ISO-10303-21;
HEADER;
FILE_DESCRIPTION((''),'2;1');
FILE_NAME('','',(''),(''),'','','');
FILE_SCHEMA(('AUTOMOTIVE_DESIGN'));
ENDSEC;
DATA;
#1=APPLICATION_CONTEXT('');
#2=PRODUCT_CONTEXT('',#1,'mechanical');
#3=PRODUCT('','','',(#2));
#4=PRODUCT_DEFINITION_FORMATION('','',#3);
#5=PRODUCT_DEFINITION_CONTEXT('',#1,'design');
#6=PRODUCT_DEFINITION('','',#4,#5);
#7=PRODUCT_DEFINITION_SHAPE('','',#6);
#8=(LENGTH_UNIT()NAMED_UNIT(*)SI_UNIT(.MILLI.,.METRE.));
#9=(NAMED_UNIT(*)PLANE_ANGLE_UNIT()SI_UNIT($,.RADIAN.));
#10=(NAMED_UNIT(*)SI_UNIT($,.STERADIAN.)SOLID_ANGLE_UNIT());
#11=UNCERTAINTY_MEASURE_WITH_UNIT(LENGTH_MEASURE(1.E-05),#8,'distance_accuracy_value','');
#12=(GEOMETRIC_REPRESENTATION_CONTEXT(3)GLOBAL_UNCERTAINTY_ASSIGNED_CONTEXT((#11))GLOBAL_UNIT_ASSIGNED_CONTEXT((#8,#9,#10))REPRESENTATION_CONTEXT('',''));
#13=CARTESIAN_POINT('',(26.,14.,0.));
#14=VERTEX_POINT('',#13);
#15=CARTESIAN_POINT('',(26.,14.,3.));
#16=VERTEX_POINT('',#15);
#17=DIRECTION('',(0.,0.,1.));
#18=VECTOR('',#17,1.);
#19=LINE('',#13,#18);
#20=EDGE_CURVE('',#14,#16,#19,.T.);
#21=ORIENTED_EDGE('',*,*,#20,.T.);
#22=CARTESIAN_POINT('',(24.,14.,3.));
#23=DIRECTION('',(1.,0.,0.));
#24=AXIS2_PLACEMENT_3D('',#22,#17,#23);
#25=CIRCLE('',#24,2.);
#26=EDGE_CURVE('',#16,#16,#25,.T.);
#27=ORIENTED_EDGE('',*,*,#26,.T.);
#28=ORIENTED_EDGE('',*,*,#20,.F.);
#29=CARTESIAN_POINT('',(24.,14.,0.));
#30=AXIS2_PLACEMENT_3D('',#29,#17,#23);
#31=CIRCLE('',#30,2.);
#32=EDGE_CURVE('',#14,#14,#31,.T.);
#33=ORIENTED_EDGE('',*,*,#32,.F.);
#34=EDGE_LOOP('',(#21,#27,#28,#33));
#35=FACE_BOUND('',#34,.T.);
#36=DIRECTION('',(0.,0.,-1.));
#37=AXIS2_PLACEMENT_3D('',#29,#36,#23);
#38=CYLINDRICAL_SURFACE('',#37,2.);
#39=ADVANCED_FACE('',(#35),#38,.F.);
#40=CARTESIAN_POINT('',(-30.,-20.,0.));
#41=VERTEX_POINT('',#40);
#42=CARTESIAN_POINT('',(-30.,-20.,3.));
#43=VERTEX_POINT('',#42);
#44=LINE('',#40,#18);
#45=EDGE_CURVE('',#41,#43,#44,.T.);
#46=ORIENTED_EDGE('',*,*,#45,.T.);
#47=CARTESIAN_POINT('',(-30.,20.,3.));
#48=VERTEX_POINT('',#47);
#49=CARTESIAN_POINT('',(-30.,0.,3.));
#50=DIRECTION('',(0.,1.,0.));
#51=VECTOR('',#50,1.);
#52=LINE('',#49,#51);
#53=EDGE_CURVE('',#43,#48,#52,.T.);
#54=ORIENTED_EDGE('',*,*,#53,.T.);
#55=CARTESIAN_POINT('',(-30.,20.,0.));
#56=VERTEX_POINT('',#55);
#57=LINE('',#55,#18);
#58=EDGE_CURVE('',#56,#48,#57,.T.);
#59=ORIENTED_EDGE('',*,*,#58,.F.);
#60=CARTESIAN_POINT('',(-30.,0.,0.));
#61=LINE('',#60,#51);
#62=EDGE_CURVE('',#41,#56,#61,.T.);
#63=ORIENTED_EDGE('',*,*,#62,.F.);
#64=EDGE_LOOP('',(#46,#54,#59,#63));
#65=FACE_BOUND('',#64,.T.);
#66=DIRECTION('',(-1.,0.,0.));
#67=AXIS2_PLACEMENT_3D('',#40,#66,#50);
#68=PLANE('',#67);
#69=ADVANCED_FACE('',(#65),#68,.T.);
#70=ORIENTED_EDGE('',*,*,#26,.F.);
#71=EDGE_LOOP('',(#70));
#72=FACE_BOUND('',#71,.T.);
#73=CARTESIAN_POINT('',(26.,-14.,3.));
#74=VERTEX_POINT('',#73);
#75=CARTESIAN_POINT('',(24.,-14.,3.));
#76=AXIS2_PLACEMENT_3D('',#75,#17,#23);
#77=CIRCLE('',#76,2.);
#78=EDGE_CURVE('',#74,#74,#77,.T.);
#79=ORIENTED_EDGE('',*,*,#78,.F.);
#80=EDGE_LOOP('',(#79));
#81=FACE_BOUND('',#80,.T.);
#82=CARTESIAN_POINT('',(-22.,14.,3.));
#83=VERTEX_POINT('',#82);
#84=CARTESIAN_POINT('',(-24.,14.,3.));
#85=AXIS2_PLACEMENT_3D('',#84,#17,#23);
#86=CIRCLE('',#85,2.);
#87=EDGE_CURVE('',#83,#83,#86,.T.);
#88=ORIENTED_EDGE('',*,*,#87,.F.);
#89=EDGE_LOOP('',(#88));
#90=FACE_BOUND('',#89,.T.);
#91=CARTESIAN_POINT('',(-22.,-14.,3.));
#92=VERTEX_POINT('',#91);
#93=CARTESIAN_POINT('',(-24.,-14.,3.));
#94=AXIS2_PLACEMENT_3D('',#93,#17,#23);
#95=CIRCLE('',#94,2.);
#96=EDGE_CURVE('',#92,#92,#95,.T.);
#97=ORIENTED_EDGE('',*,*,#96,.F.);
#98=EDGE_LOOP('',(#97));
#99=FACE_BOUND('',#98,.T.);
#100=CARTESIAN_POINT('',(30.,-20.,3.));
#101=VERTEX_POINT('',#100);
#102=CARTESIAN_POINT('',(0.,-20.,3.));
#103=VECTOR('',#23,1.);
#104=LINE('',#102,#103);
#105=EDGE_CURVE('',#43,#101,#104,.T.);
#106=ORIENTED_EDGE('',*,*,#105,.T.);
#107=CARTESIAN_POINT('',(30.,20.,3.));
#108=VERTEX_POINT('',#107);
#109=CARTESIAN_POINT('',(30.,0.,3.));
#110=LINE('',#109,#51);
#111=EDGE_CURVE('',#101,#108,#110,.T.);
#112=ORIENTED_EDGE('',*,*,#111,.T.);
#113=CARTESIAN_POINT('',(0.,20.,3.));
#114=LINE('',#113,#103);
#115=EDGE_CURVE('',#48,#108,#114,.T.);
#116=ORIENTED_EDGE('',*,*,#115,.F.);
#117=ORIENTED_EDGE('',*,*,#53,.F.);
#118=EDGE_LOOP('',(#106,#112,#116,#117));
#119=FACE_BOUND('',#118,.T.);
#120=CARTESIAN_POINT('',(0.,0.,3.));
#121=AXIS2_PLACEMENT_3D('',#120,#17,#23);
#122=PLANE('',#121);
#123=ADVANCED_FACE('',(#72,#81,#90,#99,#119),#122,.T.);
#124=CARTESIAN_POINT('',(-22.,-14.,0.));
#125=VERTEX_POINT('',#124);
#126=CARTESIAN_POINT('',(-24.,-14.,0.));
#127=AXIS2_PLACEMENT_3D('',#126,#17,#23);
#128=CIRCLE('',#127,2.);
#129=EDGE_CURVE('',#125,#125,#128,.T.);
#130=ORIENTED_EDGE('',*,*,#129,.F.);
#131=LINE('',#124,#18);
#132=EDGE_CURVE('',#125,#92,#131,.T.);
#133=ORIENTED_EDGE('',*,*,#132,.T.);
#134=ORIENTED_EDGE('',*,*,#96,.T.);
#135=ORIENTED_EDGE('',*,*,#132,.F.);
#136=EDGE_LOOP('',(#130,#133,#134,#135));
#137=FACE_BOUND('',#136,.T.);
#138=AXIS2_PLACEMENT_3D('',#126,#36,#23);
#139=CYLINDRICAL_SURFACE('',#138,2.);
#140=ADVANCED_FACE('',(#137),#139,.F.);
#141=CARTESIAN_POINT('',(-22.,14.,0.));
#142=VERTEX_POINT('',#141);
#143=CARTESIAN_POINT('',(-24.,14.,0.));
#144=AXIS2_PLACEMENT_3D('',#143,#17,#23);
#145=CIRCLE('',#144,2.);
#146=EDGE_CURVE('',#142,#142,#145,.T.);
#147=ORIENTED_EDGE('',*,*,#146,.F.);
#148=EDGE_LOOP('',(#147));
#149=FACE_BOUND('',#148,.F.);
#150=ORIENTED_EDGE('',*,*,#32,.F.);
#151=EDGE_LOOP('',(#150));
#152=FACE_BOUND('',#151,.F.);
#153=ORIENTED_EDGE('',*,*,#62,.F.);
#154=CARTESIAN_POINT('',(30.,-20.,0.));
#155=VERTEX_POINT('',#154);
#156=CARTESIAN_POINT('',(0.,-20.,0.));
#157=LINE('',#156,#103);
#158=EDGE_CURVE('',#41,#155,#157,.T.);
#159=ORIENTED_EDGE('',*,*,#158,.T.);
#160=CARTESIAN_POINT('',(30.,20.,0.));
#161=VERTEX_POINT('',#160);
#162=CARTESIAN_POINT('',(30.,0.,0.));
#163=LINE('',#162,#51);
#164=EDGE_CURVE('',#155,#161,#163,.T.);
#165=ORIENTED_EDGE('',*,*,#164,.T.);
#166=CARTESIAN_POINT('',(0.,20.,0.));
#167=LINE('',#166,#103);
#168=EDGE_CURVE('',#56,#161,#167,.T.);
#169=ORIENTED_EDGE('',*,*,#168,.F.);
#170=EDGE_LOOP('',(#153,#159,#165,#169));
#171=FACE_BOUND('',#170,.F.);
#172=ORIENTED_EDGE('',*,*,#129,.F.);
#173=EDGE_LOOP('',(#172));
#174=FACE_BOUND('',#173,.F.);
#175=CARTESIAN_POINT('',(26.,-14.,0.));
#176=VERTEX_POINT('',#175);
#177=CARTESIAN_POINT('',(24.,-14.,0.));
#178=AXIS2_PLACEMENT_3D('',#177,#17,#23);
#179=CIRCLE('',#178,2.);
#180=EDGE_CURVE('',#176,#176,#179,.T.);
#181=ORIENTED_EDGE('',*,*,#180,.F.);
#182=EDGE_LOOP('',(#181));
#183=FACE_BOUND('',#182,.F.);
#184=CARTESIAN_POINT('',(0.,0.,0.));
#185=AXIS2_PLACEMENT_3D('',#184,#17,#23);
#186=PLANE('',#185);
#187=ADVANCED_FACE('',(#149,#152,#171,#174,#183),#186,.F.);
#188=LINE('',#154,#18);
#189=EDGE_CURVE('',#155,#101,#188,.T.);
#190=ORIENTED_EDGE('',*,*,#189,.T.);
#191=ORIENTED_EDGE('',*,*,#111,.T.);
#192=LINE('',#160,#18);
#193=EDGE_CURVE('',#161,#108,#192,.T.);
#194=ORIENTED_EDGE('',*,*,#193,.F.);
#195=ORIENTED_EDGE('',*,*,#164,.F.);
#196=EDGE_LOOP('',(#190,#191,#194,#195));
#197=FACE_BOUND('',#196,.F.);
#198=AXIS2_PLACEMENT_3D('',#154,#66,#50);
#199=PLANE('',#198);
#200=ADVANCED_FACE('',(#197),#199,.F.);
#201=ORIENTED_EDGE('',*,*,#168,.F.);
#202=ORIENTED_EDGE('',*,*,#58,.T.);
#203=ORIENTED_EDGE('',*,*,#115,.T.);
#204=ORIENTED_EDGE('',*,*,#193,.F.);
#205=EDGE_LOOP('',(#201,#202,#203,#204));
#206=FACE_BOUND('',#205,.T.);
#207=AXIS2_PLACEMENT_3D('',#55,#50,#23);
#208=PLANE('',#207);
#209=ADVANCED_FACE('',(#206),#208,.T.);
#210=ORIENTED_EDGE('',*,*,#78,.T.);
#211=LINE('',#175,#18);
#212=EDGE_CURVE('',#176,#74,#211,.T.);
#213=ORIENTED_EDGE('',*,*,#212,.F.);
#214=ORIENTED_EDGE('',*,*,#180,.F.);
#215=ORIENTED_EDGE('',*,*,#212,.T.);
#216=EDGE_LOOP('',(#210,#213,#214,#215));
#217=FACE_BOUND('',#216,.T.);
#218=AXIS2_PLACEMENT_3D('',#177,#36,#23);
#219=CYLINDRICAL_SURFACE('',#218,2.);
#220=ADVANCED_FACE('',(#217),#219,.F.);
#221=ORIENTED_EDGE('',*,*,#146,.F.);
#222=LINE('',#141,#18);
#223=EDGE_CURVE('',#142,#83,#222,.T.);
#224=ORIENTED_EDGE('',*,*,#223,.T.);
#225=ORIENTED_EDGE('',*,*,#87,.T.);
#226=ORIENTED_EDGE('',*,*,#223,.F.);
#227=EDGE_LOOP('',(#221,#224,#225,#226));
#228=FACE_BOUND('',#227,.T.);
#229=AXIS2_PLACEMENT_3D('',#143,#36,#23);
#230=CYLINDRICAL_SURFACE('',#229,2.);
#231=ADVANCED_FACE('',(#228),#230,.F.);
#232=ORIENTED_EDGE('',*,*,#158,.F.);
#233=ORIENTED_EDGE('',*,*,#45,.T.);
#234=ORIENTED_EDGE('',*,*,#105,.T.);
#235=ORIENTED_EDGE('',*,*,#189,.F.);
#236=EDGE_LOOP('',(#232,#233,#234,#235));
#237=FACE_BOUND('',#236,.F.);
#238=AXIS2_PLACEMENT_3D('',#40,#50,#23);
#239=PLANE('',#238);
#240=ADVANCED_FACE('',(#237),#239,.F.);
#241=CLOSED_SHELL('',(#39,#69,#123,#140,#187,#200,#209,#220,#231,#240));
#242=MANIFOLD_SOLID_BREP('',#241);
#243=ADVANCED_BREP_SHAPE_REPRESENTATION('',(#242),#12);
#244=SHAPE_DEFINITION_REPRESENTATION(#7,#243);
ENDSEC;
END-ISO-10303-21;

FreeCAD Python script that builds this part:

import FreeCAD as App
import Part
import Sketcher

V = App.Vector
Q = App.Units.Quantity


def add_polygon(sketch, points):
    """Adds a closed chain of lines whose ends are joined by coincident constraints."""
    first, n = sketch.GeometryCount, len(points)
    for a, b in zip(points, points[1:] + points[:1]):
        sketch.addGeometry(Part.LineSegment(App.Vector(*a, 0), App.Vector(*b, 0)), False)
    for i in range(n):
        sketch.addConstraint(Sketcher.Constraint("Coincident", first + i, 2, first + (i + 1) % n, 1))

doc = App.newDocument("Part")
body = doc.addObject("PartDesign::Body", "Body")

# Sketch on XY plane
sketch1 = doc.addObject("Sketcher::SketchObject", "Sketch")
body.addObject(sketch1)
sketch1.AttachmentSupport = (doc.XY_Plane, [""])
sketch1.MapMode = "FlatFace"
add_polygon(sketch1, [(-30, 20), (-30, -20), (30, -20), (30, 20)])  # lines 0-3
sketch1.addGeometry(Part.Circle(V(-24, -14, 0), V(0, 0, 1), 2), False)  # 4
sketch1.addGeometry(Part.Circle(V(24, -14, 0), V(0, 0, 1), 2), False)  # 5
sketch1.addGeometry(Part.Circle(V(-24, 14, 0), V(0, 0, 1), 2), False)  # 6
sketch1.addGeometry(Part.Circle(V(24, 14, 0), V(0, 0, 1), 2), False)  # 7
sketch1.addConstraint([
    Sketcher.Constraint("Vertical", 0),
    Sketcher.Constraint("Horizontal", 1),
    Sketcher.Constraint("Vertical", 2),
    Sketcher.Constraint("Horizontal", 3),
    Sketcher.Constraint("Equal", 4, 5),
    Sketcher.Constraint("Equal", 5, 6),
    Sketcher.Constraint("Equal", 6, 7),
    Sketcher.Constraint("Symmetric", 5, 3, 6, 3, -1, 1),
    Sketcher.Constraint("Symmetric", 4, 3, 7, 3, -1, 1),
    Sketcher.Constraint("Symmetric", 0, 2, 2, 2, -1, 1),
    Sketcher.Constraint("Symmetric", 4, 3, 5, 3, -2),
    Sketcher.Constraint("Diameter", 4, Q("4 mm")),
    Sketcher.Constraint("DistanceX", 1, 1, 1, 2, Q("60 mm")),
    Sketcher.Constraint("DistanceY", 0, 2, 0, 1, Q("40 mm")),
    Sketcher.Constraint("DistanceX", 4, 3, -1, 1, Q("24 mm")),
    Sketcher.Constraint("DistanceY", 4, 3, -1, 1, Q("14 mm")),
])
pad1 = doc.addObject("PartDesign::Pad", "Pad")
body.addObject(pad1)
pad1.Profile = sketch1
pad1.Length = 3

doc.recompute()
